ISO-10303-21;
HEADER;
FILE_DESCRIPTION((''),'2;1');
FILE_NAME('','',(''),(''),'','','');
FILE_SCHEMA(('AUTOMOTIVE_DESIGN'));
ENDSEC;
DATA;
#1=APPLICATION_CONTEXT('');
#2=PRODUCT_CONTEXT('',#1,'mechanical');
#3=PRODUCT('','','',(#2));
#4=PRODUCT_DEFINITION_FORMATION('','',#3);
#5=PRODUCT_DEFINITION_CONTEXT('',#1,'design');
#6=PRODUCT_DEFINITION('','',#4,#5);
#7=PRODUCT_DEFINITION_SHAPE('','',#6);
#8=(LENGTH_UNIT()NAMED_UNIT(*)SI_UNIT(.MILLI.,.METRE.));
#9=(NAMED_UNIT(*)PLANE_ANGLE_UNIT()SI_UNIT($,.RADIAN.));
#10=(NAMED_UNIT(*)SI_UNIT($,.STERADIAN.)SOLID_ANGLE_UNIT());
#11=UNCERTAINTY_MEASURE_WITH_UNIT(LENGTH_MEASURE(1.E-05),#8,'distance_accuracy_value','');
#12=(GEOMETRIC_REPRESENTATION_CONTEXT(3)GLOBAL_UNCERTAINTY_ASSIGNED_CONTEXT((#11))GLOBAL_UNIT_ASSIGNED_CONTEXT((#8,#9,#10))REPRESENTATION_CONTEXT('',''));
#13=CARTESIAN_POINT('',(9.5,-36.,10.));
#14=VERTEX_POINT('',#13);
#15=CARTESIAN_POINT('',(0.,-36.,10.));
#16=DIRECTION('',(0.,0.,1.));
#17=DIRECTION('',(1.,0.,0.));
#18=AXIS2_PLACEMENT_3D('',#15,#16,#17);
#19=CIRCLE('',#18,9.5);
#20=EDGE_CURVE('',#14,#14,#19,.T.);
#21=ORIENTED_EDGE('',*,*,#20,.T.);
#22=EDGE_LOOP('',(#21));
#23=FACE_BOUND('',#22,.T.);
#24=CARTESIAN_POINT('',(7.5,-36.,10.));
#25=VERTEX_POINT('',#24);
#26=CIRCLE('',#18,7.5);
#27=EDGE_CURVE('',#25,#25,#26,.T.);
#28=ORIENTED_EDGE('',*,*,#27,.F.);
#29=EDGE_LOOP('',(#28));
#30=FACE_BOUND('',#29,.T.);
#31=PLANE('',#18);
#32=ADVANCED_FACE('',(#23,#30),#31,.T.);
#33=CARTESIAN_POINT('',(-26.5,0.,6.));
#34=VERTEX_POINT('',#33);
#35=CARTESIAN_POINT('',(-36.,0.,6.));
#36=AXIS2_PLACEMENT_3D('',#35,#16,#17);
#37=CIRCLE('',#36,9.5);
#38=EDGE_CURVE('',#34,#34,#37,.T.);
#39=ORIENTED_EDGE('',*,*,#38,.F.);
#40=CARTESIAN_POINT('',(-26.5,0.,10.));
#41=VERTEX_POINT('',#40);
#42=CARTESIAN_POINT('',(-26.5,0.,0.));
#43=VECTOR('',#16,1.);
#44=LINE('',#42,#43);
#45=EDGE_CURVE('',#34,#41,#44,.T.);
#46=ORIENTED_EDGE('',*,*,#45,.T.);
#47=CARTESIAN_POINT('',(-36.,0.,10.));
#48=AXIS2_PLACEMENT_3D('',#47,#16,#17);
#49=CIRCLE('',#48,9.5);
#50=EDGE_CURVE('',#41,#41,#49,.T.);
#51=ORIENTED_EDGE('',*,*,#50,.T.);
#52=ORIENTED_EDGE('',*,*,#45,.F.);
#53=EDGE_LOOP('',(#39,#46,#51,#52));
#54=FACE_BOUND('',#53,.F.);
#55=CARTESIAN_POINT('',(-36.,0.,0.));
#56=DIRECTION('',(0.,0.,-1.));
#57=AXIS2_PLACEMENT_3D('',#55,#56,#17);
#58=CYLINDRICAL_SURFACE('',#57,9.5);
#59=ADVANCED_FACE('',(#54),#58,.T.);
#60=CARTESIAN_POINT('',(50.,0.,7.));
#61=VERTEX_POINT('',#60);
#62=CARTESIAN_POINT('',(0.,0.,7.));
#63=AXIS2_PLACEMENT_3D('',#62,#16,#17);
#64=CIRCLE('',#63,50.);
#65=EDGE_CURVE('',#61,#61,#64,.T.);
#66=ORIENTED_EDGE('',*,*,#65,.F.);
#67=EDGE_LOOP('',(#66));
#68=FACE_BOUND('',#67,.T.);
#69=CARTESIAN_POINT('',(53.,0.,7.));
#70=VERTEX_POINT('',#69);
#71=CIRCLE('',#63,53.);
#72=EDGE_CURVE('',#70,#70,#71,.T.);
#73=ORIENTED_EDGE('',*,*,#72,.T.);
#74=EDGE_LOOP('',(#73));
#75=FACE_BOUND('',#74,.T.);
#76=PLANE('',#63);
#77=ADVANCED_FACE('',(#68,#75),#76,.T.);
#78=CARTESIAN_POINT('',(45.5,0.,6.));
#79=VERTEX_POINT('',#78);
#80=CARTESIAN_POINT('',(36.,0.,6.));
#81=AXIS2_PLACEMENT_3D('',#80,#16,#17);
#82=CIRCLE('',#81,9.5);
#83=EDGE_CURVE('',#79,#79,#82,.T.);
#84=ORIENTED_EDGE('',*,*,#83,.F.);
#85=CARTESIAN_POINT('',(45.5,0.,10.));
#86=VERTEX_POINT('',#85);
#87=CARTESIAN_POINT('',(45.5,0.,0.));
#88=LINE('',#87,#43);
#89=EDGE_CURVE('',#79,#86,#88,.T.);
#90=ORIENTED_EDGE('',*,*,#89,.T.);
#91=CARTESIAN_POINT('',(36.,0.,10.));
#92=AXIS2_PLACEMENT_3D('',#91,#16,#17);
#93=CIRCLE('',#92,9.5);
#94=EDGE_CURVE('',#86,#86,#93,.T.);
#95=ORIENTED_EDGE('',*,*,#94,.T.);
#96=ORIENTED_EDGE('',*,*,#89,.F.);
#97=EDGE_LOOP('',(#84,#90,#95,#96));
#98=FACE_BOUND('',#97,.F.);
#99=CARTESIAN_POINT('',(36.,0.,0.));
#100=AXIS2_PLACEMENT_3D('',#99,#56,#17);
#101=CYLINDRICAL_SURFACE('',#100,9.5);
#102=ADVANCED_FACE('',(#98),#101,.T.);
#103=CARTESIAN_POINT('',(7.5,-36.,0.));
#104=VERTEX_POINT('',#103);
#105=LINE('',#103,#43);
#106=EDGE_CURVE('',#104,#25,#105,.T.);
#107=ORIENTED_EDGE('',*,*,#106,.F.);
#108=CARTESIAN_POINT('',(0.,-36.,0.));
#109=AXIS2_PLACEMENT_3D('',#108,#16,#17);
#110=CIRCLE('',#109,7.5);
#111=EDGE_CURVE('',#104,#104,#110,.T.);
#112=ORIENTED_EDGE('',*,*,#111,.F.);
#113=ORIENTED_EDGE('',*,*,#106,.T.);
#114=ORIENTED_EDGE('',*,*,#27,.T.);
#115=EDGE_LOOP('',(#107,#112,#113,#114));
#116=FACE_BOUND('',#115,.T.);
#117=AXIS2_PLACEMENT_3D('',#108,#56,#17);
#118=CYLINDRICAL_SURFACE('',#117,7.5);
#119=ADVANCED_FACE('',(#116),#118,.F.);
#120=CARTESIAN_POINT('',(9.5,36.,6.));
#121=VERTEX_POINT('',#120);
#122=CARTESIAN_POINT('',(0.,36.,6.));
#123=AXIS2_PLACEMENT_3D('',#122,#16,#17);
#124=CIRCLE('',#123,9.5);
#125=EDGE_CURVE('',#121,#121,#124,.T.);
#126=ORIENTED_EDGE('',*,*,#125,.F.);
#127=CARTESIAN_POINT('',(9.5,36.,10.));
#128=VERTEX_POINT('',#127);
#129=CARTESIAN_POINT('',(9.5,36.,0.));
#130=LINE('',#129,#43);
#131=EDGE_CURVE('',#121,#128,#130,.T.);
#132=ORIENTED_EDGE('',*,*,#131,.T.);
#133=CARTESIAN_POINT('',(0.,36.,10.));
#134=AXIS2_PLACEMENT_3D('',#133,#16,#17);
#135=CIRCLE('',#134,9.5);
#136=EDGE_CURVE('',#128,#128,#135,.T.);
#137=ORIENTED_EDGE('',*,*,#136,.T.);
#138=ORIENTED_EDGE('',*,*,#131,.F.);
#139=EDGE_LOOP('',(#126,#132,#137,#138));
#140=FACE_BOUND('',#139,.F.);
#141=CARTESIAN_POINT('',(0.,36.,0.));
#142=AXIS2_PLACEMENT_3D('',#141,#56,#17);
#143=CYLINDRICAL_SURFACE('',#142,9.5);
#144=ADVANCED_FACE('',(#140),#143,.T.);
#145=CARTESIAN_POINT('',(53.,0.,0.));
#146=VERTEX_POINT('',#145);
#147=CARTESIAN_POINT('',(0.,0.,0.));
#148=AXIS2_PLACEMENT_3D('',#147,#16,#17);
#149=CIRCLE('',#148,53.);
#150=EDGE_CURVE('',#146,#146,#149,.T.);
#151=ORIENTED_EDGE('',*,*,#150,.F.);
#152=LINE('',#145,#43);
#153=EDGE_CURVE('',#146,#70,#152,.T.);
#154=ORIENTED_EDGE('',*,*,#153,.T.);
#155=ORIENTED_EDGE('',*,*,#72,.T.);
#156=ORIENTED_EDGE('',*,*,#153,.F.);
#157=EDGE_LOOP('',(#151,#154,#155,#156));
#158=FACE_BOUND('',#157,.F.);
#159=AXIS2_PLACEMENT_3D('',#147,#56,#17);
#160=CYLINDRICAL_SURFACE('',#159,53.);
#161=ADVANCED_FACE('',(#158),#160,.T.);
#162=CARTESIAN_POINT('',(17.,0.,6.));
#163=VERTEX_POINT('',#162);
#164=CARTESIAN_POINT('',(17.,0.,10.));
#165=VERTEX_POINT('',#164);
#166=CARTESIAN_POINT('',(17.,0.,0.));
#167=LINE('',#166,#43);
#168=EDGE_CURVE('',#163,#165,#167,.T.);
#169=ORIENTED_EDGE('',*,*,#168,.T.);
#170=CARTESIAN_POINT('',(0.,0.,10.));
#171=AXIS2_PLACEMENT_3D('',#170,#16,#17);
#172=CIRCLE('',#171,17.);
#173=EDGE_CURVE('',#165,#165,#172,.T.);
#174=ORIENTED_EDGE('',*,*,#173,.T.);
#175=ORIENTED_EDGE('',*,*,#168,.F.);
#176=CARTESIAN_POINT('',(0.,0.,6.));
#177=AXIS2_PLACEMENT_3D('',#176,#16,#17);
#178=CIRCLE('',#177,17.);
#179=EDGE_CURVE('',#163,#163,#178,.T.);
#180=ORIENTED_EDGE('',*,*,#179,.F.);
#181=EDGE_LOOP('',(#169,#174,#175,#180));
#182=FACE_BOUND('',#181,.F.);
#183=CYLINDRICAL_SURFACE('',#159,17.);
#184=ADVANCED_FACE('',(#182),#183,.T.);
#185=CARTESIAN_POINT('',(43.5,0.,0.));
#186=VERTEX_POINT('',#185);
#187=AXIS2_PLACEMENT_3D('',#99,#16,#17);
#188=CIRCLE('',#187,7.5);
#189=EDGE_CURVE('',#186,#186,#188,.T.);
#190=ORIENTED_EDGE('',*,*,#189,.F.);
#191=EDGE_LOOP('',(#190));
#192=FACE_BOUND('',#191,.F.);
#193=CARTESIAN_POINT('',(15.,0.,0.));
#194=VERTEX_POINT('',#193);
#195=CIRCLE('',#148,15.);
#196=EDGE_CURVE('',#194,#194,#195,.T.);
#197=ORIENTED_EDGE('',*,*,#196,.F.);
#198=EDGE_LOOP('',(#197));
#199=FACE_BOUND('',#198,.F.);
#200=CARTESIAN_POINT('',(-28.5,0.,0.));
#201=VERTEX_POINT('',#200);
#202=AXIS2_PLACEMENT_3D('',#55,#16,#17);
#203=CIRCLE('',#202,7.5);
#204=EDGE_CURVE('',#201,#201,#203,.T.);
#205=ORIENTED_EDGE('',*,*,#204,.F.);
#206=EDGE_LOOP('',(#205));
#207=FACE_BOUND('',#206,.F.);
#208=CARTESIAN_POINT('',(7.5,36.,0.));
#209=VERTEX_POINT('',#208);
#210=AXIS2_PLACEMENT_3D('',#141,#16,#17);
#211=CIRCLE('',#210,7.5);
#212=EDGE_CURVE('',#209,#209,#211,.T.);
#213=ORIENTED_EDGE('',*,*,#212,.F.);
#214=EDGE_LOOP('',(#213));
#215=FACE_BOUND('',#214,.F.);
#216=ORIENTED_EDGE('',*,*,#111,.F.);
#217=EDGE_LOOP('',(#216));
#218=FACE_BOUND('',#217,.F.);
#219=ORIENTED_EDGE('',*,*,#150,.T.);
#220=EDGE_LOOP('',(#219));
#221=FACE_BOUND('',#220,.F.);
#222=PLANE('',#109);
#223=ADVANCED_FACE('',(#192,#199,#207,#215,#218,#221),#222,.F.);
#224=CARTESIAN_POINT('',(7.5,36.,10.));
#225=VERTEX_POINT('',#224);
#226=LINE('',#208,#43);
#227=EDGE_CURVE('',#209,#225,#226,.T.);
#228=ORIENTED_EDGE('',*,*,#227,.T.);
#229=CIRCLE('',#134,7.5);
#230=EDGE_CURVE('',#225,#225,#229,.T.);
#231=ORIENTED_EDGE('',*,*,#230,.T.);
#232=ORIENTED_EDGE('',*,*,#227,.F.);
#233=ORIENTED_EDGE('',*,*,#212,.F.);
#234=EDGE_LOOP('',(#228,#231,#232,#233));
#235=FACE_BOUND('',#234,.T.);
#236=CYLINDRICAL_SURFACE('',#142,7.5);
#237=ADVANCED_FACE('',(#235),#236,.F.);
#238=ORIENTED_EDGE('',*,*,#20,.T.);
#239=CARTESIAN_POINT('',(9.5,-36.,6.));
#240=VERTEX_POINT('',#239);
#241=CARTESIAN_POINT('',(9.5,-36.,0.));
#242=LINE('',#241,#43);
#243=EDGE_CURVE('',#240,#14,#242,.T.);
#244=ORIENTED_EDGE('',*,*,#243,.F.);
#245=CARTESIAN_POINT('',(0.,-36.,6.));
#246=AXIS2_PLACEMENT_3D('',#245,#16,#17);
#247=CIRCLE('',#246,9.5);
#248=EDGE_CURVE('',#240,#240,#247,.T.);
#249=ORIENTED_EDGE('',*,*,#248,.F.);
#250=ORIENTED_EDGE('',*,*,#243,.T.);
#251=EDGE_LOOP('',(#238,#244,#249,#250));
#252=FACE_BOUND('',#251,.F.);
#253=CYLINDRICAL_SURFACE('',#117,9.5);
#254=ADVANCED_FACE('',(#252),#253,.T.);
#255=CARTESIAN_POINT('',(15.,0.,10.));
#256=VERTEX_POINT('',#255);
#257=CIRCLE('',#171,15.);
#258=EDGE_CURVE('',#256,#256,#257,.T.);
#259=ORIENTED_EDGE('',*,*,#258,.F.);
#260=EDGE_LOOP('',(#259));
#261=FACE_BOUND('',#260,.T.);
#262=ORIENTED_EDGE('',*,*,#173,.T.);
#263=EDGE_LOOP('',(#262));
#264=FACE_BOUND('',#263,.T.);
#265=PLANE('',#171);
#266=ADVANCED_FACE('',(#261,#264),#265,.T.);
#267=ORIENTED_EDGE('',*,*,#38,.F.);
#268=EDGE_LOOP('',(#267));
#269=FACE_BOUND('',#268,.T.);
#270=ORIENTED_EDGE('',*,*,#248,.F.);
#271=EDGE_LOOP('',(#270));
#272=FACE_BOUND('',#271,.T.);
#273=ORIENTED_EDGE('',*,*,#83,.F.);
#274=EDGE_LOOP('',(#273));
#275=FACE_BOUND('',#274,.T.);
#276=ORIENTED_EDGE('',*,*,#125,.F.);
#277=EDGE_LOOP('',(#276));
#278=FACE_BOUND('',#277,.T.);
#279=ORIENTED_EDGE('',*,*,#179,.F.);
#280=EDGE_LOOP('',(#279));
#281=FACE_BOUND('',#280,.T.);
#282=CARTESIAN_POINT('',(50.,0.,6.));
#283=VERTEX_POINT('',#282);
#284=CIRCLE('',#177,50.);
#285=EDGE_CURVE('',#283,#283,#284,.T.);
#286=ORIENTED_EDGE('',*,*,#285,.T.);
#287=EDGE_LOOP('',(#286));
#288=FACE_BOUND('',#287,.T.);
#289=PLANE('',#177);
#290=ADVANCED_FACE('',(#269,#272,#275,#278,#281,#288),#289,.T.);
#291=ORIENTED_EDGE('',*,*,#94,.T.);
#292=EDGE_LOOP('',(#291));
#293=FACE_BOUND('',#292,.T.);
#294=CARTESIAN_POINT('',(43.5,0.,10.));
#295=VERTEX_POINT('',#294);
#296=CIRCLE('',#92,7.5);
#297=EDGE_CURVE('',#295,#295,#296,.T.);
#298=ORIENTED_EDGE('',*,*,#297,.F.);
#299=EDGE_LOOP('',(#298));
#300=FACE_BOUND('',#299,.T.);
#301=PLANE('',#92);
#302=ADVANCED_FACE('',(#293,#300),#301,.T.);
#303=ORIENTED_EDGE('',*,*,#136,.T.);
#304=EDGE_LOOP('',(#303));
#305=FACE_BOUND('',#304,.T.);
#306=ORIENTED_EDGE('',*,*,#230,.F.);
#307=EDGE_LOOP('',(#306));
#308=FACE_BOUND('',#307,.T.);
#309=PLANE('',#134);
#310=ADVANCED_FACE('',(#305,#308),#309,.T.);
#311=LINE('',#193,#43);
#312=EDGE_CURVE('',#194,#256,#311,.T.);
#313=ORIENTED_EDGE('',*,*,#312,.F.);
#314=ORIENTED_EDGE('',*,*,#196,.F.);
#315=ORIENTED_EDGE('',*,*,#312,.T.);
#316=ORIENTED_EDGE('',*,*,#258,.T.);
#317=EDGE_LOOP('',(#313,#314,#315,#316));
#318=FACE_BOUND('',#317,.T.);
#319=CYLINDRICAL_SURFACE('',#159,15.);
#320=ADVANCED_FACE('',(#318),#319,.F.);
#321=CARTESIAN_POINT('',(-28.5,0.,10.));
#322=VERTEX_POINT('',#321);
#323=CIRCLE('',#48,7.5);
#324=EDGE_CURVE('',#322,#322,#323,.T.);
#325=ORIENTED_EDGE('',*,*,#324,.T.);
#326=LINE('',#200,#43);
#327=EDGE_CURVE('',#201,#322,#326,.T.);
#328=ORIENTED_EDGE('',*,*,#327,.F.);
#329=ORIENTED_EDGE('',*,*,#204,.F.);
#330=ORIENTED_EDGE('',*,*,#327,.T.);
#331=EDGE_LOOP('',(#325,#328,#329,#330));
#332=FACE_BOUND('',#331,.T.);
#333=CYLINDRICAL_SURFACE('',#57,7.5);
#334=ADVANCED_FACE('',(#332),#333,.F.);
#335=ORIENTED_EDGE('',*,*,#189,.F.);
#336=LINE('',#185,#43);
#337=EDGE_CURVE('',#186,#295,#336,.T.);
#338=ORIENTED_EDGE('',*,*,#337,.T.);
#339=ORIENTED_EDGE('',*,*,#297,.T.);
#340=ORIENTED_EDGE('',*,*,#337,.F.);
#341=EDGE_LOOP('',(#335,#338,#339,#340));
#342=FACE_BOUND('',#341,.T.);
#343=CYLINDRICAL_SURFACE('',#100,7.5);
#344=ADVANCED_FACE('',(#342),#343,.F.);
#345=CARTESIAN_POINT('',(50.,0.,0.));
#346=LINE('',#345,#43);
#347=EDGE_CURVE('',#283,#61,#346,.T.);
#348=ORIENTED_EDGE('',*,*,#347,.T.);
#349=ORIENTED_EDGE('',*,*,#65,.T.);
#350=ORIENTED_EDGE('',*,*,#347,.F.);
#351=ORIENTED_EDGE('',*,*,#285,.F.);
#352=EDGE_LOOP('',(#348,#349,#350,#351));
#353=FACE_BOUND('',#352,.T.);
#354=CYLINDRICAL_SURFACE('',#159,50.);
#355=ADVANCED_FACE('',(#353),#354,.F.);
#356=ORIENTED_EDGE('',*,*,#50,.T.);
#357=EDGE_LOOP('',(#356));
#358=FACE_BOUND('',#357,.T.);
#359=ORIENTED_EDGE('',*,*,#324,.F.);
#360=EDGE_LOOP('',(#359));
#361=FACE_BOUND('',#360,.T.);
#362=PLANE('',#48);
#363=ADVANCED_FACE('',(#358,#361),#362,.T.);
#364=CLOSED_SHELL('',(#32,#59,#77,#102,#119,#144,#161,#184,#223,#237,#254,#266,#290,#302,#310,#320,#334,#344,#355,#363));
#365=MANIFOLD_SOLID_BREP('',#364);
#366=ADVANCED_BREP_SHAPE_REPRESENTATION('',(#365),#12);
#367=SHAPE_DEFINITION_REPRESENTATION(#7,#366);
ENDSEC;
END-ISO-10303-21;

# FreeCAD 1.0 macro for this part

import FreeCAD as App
import Part
import Sketcher
from FreeCAD import Vector

doc = App.newDocument("Part")
body = doc.addObject("PartDesign::Body", "Body")

sketch1 = doc.addObject("Sketcher::SketchObject", "Sketch")
body.addObject(sketch1)
sketch1.AttachmentSupport = (doc.XY_Plane, [""])
sketch1.MapMode = "FlatFace"
sketch1.addGeometry(Part.Circle(Vector(0, 0, 0), Vector(0, 0, 1), 50), False)
sketch1.addGeometry(Part.Circle(Vector(0, -36, 0), Vector(0, 0, 1), 10), False)
sketch1.addGeometry(Part.Circle(Vector(-36, 0, 0), Vector(0, 0, 1), 10), False)
sketch1.addGeometry(Part.Circle(Vector(0, 0, 0), Vector(0, 0, 1), 17), False)
sketch1.addGeometry(Part.Circle(Vector(36, 0, 0), Vector(0, 0, 1), 10), False)
sketch1.addGeometry(Part.Circle(Vector(0, 36, 0), Vector(0, 0, 1), 10), False)
sketch1.addConstraint(Sketcher.Constraint("Coincident", 0, 3, -1, 1))
sketch1.addConstraint(Sketcher.Constraint("Coincident", 3, 3, -1, 1))
sketch1.addConstraint(Sketcher.Constraint("Equal", 1, 2))
sketch1.addConstraint(Sketcher.Constraint("Equal", 2, 4))
sketch1.addConstraint(Sketcher.Constraint("Equal", 4, 5))
sketch1.addConstraint(Sketcher.Constraint("Symmetric", 2, 3, 4, 3, -1, 1))
sketch1.addConstraint(Sketcher.Constraint("Symmetric", 1, 3, 5, 3, -1, 1))
sketch1.addConstraint(Sketcher.Constraint("PointOnObject", 1, 3, -2))
sketch1.addConstraint(Sketcher.Constraint("PointOnObject", 2, 3, -1))
sketch1.addConstraint(Sketcher.Constraint("Diameter", 0, 100.0))
sketch1.addConstraint(Sketcher.Constraint("Diameter", 1, 19.0))
sketch1.addConstraint(Sketcher.Constraint("Diameter", 3, 34.0))
sketch1.addConstraint(Sketcher.Constraint("DistanceY", 1, 3, -1, 1, 36.0))
sketch1.addConstraint(Sketcher.Constraint("DistanceX", 2, 3, -1, 1, 36.0))
pad1 = doc.addObject("PartDesign::Pad", "Pad")
body.addObject(pad1)
pad1.Profile = sketch1
pad1.Length = 6

sketch2 = doc.addObject("Sketcher::SketchObject", "Sketch001")
body.addObject(sketch2)
sketch2.AttachmentSupport = (doc.XY_Plane, [""])
sketch2.MapMode = "FlatFace"
sketch2.addGeometry(Part.Circle(Vector(0, 0, 0), Vector(0, 0, 1), 53), False)
sketch2.addGeometry(Part.Circle(Vector(0, 0, 0), Vector(0, 0, 1), 50), False)
sketch2.addConstraint(Sketcher.Constraint("Coincident", 0, 3, -1, 1))
sketch2.addConstraint(Sketcher.Constraint("Coincident", 1, 3, -1, 1))
sketch2.addConstraint(Sketcher.Constraint("Diameter", 0, 106.0))
sketch2.addConstraint(Sketcher.Constraint("Diameter", 1, 100.0))
pad2 = doc.addObject("PartDesign::Pad", "Pad001")
body.addObject(pad2)
pad2.Profile = sketch2
pad2.Length = 7

sketch3 = doc.addObject("Sketcher::SketchObject", "Sketch002")
body.addObject(sketch3)
sketch3.AttachmentSupport = (doc.XY_Plane, [""])
sketch3.MapMode = "FlatFace"
sketch3.addGeometry(Part.Circle(Vector(0, -36, 0), Vector(0, 0, 1), 10), False)
sketch3.addGeometry(Part.Circle(Vector(0, -36, 0), Vector(0, 0, 1), 8), False)
sketch3.addGeometry(Part.Circle(Vector(-36, 0, 0), Vector(0, 0, 1), 10), False)
sketch3.addGeometry(Part.Circle(Vector(-36, 0, 0), Vector(0, 0, 1), 8), False)
sketch3.addGeometry(Part.Circle(Vector(0, 0, 0), Vector(0, 0, 1), 17), False)
sketch3.addGeometry(Part.Circle(Vector(0, 0, 0), Vector(0, 0, 1), 15), False)
sketch3.addGeometry(Part.Circle(Vector(0, 36, 0), Vector(0, 0, 1), 10), False)
sketch3.addGeometry(Part.Circle(Vector(0, 36, 0), Vector(0, 0, 1), 8), False)
sketch3.addGeometry(Part.Circle(Vector(36, 0, 0), Vector(0, 0, 1), 10), False)
sketch3.addGeometry(Part.Circle(Vector(36, 0, 0), Vector(0, 0, 1), 8), False)
sketch3.addConstraint(Sketcher.Constraint("Coincident", 4, 3, -1, 1))
sketch3.addConstraint(Sketcher.Constraint("Coincident", 5, 3, -1, 1))
sketch3.addConstraint(Sketcher.Constraint("Coincident", 1, 3, 0, 3))
sketch3.addConstraint(Sketcher.Constraint("Coincident", 3, 3, 2, 3))
sketch3.addConstraint(Sketcher.Constraint("Coincident", 7, 3, 6, 3))
sketch3.addConstraint(Sketcher.Constraint("Coincident", 9, 3, 8, 3))
sketch3.addConstraint(Sketcher.Constraint("Equal", 0, 2))
sketch3.addConstraint(Sketcher.Constraint("Equal", 1, 3))
sketch3.addConstraint(Sketcher.Constraint("Equal", 2, 6))
sketch3.addConstraint(Sketcher.Constraint("Equal", 3, 7))
sketch3.addConstraint(Sketcher.Constraint("Equal", 6, 8))
sketch3.addConstraint(Sketcher.Constraint("Equal", 7, 9))
sketch3.addConstraint(Sketcher.Constraint("Symmetric", 0, 3, 6, 3, -1, 1))
sketch3.addConstraint(Sketcher.Constraint("Symmetric", 2, 3, 8, 3, -1, 1))
sketch3.addConstraint(Sketcher.Constraint("PointOnObject", 0, 3, -2))
sketch3.addConstraint(Sketcher.Constraint("PointOnObject", 2, 3, -1))
sketch3.addConstraint(Sketcher.Constraint("Diameter", 0, 19.0))
sketch3.addConstraint(Sketcher.Constraint("Diameter", 1, 15.0))
sketch3.addConstraint(Sketcher.Constraint("Diameter", 4, 34.0))
sketch3.addConstraint(Sketcher.Constraint("Diameter", 5, 30.0))
sketch3.addConstraint(Sketcher.Constraint("DistanceY", 0, 3, -1, 1, 36.0))
sketch3.addConstraint(Sketcher.Constraint("DistanceX", 2, 3, -1, 1, 36.0))
pad3 = doc.addObject("PartDesign::Pad", "Pad002")
body.addObject(pad3)
pad3.Profile = sketch3
pad3.Length = 10

doc.recompute()
